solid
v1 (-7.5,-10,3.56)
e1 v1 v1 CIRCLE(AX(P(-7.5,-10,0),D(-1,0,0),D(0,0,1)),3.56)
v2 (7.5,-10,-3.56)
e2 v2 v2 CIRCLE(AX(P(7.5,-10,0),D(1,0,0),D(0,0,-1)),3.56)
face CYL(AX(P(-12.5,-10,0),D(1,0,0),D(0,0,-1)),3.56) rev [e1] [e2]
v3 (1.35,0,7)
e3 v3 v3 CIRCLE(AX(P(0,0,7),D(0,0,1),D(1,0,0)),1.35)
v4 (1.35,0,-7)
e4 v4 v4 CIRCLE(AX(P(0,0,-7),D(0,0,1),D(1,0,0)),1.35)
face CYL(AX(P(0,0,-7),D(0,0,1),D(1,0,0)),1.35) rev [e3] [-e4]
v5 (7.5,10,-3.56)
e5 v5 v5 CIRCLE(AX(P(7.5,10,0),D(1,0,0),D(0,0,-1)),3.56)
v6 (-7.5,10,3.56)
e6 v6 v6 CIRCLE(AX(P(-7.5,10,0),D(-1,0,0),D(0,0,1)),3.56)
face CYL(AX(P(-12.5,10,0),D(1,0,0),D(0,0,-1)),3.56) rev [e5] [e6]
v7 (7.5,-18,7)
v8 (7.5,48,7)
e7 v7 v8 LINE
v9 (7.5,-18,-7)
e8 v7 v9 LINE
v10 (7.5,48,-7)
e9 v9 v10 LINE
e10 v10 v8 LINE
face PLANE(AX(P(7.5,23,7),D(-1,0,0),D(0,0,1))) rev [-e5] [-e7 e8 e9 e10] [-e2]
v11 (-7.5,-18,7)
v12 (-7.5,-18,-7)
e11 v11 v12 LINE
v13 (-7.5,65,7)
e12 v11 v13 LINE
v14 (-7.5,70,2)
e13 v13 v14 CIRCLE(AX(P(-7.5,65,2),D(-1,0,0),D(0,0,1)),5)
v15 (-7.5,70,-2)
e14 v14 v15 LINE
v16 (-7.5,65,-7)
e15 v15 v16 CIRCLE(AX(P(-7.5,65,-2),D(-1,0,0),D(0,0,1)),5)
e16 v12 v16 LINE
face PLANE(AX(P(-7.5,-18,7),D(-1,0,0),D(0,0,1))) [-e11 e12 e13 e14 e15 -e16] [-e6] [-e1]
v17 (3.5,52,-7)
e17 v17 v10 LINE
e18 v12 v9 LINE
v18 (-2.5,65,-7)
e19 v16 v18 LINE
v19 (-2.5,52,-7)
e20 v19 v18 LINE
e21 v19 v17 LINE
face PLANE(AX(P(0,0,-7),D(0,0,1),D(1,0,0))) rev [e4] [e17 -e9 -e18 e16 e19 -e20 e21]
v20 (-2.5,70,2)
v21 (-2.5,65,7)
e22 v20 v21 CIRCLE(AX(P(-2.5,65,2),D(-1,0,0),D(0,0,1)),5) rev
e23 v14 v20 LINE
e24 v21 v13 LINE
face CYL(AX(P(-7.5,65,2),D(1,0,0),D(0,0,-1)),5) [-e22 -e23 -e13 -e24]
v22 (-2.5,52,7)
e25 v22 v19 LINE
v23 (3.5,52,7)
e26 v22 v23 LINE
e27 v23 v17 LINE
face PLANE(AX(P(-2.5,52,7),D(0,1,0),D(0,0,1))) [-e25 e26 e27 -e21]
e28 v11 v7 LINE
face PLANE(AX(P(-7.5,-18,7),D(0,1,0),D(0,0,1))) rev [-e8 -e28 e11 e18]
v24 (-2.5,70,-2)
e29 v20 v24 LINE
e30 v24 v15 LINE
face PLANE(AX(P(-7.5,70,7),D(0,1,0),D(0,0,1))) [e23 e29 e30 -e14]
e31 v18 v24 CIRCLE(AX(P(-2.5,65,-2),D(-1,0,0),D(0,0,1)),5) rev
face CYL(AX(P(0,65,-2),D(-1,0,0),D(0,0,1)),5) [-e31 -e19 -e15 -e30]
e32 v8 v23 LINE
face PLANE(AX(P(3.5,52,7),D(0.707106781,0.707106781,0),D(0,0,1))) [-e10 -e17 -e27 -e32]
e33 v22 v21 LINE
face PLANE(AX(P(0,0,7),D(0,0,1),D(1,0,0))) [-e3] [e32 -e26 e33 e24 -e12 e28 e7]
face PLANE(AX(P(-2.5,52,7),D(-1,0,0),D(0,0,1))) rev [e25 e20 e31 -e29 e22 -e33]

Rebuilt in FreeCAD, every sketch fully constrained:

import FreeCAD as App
import Part
import Sketcher

V = App.Vector


def edges_at(feature, points):
    """Names of the edges that pass closest to the given points."""
    edges = feature.Shape.Edges
    near = lambda p: min(range(len(edges)), key=lambda i: edges[i].distToShape(Part.Vertex(*p))[0])
    return sorted({f"Edge{near(p) + 1}" for p in points})

doc = App.newDocument("Part")
body = doc.addObject("PartDesign::Body", "Body")

sketch1 = body.newObject("Sketcher::SketchObject", "Sketch")
sketch1.AttachmentSupport = (doc.getObject("XY_Plane"), [""])
sketch1.MapMode = "FlatFace"
sketch1.addGeometry([
    Part.LineSegment(V(-7.5, -18, 0), V(7.5, -18, 0)),
    Part.LineSegment(V(7.5, -18, 0), V(7.5, 52, 0)),
    Part.LineSegment(V(7.5, 52, 0), V(-2.5, 52, 0)),
    Part.LineSegment(V(-2.5, 52, 0), V(-2.5, 70, 0)),
    Part.LineSegment(V(-2.5, 70, 0), V(-7.5, 70, 0)),
    Part.LineSegment(V(-7.5, 70, 0), V(-7.5, -18, 0)),
], False)
sketch1.addConstraint([
    Sketcher.Constraint("Coincident", 0, 2, 1, 1),
    Sketcher.Constraint("Coincident", 1, 2, 2, 1),
    Sketcher.Constraint("Coincident", 2, 2, 3, 1),
    Sketcher.Constraint("Coincident", 3, 2, 4, 1),
    Sketcher.Constraint("Coincident", 4, 2, 5, 1),
    Sketcher.Constraint("Coincident", 5, 2, 0, 1),
    Sketcher.Constraint("Horizontal", 0),
    Sketcher.Constraint("Vertical", 1),
    Sketcher.Constraint("Horizontal", 2),
    Sketcher.Constraint("Vertical", 3),
    Sketcher.Constraint("Horizontal", 4),
    Sketcher.Constraint("Vertical", 5),
    Sketcher.Constraint("DistanceX", 0, 1, 0, 2, 15.0),
    Sketcher.Constraint("DistanceX", 2, 2, 2, 1, 10.0),
    Sketcher.Constraint("DistanceY", 1, 1, 1, 2, 70.0),
    Sketcher.Constraint("DistanceY", 3, 1, 3, 2, 18.0),
    Sketcher.Constraint("DistanceY", 0, 2, -1, 1, 18.0),
    Sketcher.Constraint("DistanceX", -1, 1, 0, 2, 7.5),
])
pad1 = body.newObject("PartDesign::Pad", "Pad")
pad1.Profile = sketch1
pad1.Length = 14
pad1.Midplane = True

sketch2 = body.newObject("Sketcher::SketchObject", "Sketch001")
sketch2.AttachmentSupport = (doc.getObject("YZ_Plane"), [""])
sketch2.MapMode = "FlatFace"
sketch2.AttachmentOffset = App.Placement(V(0, 0, 7.5), App.Rotation())
sketch2.addGeometry([
    Part.Circle(V(-10, 0, 0), V(0, 0, 1), 3.56),
    Part.Circle(V(10, 0, 0), V(0, 0, 1), 3.56),
], False)
sketch2.addConstraint([
    Sketcher.Constraint("Equal", 0, 1),
    Sketcher.Constraint("Symmetric", 0, 3, 1, 3, -1, 1),
    Sketcher.Constraint("PointOnObject", 0, 3, -1),
    Sketcher.Constraint("Diameter", 0, 7.12),
    Sketcher.Constraint("DistanceX", 0, 3, -1, 1, 10.0),
])
pocket1 = body.newObject("PartDesign::Pocket", "Pocket")
pocket1.Profile = sketch2
pocket1.Length = 20

sketch3 = body.newObject("Sketcher::SketchObject", "Sketch002")
sketch3.AttachmentSupport = (doc.getObject("XY_Plane"), [""])
sketch3.MapMode = "FlatFace"
sketch3.AttachmentOffset = App.Placement(V(0, 0, 7), App.Rotation())
sketch3.addGeometry(Part.Circle(V(0, 0, 0), V(0, 0, 1), 1.35), False)
sketch3.addConstraint([
    Sketcher.Constraint("Coincident", 0, 3, -1, 1),
    Sketcher.Constraint("Diameter", 0, 2.7),
])
pocket2 = body.newObject("PartDesign::Pocket", "Pocket001")
pocket2.Profile = sketch3
pocket2.Length = 14
doc.recompute()

fillet = body.newObject("PartDesign::Fillet", "Fillet")
fillet.Base = (pocket2, edges_at(pocket2, [(-5, 70, 7), (-5, 70, -7)]))
fillet.Radius = 5
doc.recompute()

chamfer = body.newObject("PartDesign::Chamfer", "Chamfer")
chamfer.Base = (fillet, edges_at(fillet, [(7.5, 52, 0)]))
chamfer.Size = 4

doc.recompute()
